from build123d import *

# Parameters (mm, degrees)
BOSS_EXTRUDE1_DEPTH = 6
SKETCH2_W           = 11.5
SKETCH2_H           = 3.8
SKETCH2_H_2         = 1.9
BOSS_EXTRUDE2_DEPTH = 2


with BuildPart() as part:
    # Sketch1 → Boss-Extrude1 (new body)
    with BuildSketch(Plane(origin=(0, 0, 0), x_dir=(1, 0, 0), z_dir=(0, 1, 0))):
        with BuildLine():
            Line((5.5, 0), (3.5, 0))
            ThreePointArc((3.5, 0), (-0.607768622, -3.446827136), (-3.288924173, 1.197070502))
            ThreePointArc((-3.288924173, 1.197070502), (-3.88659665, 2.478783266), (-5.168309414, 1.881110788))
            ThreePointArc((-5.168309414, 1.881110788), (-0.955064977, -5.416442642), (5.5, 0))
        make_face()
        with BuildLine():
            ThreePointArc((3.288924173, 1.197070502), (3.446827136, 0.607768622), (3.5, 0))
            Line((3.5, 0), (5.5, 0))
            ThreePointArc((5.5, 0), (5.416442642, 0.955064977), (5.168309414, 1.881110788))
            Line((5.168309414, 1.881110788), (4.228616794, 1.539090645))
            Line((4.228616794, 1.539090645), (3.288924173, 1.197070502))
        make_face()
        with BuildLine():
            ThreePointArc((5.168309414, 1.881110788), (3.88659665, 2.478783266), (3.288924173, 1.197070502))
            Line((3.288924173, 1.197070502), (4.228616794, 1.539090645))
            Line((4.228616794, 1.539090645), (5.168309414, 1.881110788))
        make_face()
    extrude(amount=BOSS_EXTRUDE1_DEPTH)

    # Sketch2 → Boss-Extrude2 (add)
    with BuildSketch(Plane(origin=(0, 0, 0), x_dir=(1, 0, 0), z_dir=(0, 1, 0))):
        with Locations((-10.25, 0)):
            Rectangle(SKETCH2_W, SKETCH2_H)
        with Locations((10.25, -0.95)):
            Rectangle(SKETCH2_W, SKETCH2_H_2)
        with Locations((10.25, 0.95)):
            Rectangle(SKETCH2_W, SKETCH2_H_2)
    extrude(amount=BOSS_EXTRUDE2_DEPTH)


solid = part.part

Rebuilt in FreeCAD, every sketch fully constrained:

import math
import FreeCAD as App
import Part
import Sketcher
from FreeCAD import Vector


def add_polygon(sketch, points):
    """Adds a closed chain of lines whose ends are joined by coincident constraints."""
    first, n = sketch.GeometryCount, len(points)
    for a, b in zip(points, points[1:] + points[:1]):
        sketch.addGeometry(Part.LineSegment(App.Vector(*a, 0), App.Vector(*b, 0)), False)
    for i in range(n):
        sketch.addConstraint(Sketcher.Constraint("Coincident", first + i, 2, first + (i + 1) % n, 1))

doc = App.newDocument("Part")
body = doc.addObject("PartDesign::Body", "Body")

# Sketch on XZ plane
sketch1 = doc.addObject("Sketcher::SketchObject", "Sketch")
body.addObject(sketch1)
sketch1.AttachmentSupport = (doc.XZ_Plane, [""])
sketch1.MapMode = "FlatFace"
sketch1.addGeometry([
    Part.ArcOfCircle(Part.Circle(Vector(0, 0, 0), Vector(0, 0, 1), 3.5), math.radians(0), math.radians(200)),  # 0
    Part.ArcOfCircle(Part.Circle(Vector(-4.2, -1.5, 0), Vector(0, 0, 1), 1), math.radians(-160), math.radians(20)),  # 1
    Part.ArcOfCircle(Part.Circle(Vector(0, 0, 0), Vector(0, 0, 1), 5.5), math.radians(0), math.radians(200)),  # 2
    Part.ArcOfCircle(Part.Circle(Vector(0, 0, 0), Vector(0, 0, 1), 5.5), math.radians(-20), math.radians(0)),  # 3
    Part.ArcOfCircle(Part.Circle(Vector(4.2, -1.5, 0), Vector(0, 0, 1), 1), math.radians(160), math.radians(340)),  # 4
    Part.ArcOfCircle(Part.Circle(Vector(0, 0, 0), Vector(0, 0, 1), 3.5), math.radians(-20), math.radians(0)),  # 5
], False)
sketch1.addConstraint([
    Sketcher.Constraint("Tangent", 0, 2, 1, 2),
    Sketcher.Constraint("Tangent", 1, 1, 2, 2),
    Sketcher.Constraint("Tangent", 2, 1, 3, 2),
    Sketcher.Constraint("Tangent", 3, 1, 4, 2),
    Sketcher.Constraint("Tangent", 4, 1, 5, 1),
    Sketcher.Constraint("Tangent", 5, 2, 0, 1),
    Sketcher.Constraint("Coincident", 0, 3, -1, 1),
    Sketcher.Constraint("Coincident", 2, 3, -1, 1),
    Sketcher.Constraint("Equal", 2, 3),
    Sketcher.Constraint("Equal", 1, 4),
    Sketcher.Constraint("PointOnObject", 2, 1, -1),
    Sketcher.Constraint("PointOnObject", 5, 2, -1),
    Sketcher.Constraint("Horizontal", 1, 3, 4, 3),
    Sketcher.Constraint("Radius", 1, 1.0),
    Sketcher.Constraint("Radius", 0, 3.5),
    Sketcher.Constraint("DistanceY", 1, 3, -1, 1, 1.539091),
])
pad1 = doc.addObject("PartDesign::Pad", "Pad")
body.addObject(pad1)
pad1.Profile = sketch1
pad1.Length = 6
pad1.Reversed = True

# Sketch on XZ plane
sketch2 = doc.addObject("Sketcher::SketchObject", "Sketch001")
body.addObject(sketch2)
sketch2.AttachmentSupport = (doc.XZ_Plane, [""])
sketch2.MapMode = "FlatFace"
add_polygon(sketch2, [(-16, -1.9), (-16, 1.9), (-4.5, 1.9), (-4.5, -1.9)])  # lines 0-3
add_polygon(sketch2, [(4.5, 1.9), (16, 1.9), (16, -1.9), (4.5, -1.9)])  # lines 4-7
sketch2.addConstraint([
    Sketcher.Constraint("Vertical", 0),
    Sketcher.Constraint("Horizontal", 1),
    Sketcher.Constraint("Vertical", 2),
    Sketcher.Constraint("Horizontal", 3),
    Sketcher.Constraint("Horizontal", 4),
    Sketcher.Constraint("Vertical", 5),
    Sketcher.Constraint("Horizontal", 6),
    Sketcher.Constraint("Vertical", 7),
    Sketcher.Constraint("Symmetric", 3, 2, 4, 2, -1, 1),
    Sketcher.Constraint("Symmetric", 1, 2, 6, 2, -1, 1),
    Sketcher.Constraint("Horizontal", 1, 2, 4, 2),
    Sketcher.Constraint("DistanceX", 1, 1, 1, 2, 11.5),
    Sketcher.Constraint("DistanceY", 0, 1, 0, 2, 3.8),
    Sketcher.Constraint("DistanceX", 0, 2, -1, 1, 16.0),
])
pad2 = doc.addObject("PartDesign::Pad", "Pad001")
body.addObject(pad2)
pad2.Profile = sketch2
pad2.Length = 2
pad2.Reversed = True

doc.recompute()
